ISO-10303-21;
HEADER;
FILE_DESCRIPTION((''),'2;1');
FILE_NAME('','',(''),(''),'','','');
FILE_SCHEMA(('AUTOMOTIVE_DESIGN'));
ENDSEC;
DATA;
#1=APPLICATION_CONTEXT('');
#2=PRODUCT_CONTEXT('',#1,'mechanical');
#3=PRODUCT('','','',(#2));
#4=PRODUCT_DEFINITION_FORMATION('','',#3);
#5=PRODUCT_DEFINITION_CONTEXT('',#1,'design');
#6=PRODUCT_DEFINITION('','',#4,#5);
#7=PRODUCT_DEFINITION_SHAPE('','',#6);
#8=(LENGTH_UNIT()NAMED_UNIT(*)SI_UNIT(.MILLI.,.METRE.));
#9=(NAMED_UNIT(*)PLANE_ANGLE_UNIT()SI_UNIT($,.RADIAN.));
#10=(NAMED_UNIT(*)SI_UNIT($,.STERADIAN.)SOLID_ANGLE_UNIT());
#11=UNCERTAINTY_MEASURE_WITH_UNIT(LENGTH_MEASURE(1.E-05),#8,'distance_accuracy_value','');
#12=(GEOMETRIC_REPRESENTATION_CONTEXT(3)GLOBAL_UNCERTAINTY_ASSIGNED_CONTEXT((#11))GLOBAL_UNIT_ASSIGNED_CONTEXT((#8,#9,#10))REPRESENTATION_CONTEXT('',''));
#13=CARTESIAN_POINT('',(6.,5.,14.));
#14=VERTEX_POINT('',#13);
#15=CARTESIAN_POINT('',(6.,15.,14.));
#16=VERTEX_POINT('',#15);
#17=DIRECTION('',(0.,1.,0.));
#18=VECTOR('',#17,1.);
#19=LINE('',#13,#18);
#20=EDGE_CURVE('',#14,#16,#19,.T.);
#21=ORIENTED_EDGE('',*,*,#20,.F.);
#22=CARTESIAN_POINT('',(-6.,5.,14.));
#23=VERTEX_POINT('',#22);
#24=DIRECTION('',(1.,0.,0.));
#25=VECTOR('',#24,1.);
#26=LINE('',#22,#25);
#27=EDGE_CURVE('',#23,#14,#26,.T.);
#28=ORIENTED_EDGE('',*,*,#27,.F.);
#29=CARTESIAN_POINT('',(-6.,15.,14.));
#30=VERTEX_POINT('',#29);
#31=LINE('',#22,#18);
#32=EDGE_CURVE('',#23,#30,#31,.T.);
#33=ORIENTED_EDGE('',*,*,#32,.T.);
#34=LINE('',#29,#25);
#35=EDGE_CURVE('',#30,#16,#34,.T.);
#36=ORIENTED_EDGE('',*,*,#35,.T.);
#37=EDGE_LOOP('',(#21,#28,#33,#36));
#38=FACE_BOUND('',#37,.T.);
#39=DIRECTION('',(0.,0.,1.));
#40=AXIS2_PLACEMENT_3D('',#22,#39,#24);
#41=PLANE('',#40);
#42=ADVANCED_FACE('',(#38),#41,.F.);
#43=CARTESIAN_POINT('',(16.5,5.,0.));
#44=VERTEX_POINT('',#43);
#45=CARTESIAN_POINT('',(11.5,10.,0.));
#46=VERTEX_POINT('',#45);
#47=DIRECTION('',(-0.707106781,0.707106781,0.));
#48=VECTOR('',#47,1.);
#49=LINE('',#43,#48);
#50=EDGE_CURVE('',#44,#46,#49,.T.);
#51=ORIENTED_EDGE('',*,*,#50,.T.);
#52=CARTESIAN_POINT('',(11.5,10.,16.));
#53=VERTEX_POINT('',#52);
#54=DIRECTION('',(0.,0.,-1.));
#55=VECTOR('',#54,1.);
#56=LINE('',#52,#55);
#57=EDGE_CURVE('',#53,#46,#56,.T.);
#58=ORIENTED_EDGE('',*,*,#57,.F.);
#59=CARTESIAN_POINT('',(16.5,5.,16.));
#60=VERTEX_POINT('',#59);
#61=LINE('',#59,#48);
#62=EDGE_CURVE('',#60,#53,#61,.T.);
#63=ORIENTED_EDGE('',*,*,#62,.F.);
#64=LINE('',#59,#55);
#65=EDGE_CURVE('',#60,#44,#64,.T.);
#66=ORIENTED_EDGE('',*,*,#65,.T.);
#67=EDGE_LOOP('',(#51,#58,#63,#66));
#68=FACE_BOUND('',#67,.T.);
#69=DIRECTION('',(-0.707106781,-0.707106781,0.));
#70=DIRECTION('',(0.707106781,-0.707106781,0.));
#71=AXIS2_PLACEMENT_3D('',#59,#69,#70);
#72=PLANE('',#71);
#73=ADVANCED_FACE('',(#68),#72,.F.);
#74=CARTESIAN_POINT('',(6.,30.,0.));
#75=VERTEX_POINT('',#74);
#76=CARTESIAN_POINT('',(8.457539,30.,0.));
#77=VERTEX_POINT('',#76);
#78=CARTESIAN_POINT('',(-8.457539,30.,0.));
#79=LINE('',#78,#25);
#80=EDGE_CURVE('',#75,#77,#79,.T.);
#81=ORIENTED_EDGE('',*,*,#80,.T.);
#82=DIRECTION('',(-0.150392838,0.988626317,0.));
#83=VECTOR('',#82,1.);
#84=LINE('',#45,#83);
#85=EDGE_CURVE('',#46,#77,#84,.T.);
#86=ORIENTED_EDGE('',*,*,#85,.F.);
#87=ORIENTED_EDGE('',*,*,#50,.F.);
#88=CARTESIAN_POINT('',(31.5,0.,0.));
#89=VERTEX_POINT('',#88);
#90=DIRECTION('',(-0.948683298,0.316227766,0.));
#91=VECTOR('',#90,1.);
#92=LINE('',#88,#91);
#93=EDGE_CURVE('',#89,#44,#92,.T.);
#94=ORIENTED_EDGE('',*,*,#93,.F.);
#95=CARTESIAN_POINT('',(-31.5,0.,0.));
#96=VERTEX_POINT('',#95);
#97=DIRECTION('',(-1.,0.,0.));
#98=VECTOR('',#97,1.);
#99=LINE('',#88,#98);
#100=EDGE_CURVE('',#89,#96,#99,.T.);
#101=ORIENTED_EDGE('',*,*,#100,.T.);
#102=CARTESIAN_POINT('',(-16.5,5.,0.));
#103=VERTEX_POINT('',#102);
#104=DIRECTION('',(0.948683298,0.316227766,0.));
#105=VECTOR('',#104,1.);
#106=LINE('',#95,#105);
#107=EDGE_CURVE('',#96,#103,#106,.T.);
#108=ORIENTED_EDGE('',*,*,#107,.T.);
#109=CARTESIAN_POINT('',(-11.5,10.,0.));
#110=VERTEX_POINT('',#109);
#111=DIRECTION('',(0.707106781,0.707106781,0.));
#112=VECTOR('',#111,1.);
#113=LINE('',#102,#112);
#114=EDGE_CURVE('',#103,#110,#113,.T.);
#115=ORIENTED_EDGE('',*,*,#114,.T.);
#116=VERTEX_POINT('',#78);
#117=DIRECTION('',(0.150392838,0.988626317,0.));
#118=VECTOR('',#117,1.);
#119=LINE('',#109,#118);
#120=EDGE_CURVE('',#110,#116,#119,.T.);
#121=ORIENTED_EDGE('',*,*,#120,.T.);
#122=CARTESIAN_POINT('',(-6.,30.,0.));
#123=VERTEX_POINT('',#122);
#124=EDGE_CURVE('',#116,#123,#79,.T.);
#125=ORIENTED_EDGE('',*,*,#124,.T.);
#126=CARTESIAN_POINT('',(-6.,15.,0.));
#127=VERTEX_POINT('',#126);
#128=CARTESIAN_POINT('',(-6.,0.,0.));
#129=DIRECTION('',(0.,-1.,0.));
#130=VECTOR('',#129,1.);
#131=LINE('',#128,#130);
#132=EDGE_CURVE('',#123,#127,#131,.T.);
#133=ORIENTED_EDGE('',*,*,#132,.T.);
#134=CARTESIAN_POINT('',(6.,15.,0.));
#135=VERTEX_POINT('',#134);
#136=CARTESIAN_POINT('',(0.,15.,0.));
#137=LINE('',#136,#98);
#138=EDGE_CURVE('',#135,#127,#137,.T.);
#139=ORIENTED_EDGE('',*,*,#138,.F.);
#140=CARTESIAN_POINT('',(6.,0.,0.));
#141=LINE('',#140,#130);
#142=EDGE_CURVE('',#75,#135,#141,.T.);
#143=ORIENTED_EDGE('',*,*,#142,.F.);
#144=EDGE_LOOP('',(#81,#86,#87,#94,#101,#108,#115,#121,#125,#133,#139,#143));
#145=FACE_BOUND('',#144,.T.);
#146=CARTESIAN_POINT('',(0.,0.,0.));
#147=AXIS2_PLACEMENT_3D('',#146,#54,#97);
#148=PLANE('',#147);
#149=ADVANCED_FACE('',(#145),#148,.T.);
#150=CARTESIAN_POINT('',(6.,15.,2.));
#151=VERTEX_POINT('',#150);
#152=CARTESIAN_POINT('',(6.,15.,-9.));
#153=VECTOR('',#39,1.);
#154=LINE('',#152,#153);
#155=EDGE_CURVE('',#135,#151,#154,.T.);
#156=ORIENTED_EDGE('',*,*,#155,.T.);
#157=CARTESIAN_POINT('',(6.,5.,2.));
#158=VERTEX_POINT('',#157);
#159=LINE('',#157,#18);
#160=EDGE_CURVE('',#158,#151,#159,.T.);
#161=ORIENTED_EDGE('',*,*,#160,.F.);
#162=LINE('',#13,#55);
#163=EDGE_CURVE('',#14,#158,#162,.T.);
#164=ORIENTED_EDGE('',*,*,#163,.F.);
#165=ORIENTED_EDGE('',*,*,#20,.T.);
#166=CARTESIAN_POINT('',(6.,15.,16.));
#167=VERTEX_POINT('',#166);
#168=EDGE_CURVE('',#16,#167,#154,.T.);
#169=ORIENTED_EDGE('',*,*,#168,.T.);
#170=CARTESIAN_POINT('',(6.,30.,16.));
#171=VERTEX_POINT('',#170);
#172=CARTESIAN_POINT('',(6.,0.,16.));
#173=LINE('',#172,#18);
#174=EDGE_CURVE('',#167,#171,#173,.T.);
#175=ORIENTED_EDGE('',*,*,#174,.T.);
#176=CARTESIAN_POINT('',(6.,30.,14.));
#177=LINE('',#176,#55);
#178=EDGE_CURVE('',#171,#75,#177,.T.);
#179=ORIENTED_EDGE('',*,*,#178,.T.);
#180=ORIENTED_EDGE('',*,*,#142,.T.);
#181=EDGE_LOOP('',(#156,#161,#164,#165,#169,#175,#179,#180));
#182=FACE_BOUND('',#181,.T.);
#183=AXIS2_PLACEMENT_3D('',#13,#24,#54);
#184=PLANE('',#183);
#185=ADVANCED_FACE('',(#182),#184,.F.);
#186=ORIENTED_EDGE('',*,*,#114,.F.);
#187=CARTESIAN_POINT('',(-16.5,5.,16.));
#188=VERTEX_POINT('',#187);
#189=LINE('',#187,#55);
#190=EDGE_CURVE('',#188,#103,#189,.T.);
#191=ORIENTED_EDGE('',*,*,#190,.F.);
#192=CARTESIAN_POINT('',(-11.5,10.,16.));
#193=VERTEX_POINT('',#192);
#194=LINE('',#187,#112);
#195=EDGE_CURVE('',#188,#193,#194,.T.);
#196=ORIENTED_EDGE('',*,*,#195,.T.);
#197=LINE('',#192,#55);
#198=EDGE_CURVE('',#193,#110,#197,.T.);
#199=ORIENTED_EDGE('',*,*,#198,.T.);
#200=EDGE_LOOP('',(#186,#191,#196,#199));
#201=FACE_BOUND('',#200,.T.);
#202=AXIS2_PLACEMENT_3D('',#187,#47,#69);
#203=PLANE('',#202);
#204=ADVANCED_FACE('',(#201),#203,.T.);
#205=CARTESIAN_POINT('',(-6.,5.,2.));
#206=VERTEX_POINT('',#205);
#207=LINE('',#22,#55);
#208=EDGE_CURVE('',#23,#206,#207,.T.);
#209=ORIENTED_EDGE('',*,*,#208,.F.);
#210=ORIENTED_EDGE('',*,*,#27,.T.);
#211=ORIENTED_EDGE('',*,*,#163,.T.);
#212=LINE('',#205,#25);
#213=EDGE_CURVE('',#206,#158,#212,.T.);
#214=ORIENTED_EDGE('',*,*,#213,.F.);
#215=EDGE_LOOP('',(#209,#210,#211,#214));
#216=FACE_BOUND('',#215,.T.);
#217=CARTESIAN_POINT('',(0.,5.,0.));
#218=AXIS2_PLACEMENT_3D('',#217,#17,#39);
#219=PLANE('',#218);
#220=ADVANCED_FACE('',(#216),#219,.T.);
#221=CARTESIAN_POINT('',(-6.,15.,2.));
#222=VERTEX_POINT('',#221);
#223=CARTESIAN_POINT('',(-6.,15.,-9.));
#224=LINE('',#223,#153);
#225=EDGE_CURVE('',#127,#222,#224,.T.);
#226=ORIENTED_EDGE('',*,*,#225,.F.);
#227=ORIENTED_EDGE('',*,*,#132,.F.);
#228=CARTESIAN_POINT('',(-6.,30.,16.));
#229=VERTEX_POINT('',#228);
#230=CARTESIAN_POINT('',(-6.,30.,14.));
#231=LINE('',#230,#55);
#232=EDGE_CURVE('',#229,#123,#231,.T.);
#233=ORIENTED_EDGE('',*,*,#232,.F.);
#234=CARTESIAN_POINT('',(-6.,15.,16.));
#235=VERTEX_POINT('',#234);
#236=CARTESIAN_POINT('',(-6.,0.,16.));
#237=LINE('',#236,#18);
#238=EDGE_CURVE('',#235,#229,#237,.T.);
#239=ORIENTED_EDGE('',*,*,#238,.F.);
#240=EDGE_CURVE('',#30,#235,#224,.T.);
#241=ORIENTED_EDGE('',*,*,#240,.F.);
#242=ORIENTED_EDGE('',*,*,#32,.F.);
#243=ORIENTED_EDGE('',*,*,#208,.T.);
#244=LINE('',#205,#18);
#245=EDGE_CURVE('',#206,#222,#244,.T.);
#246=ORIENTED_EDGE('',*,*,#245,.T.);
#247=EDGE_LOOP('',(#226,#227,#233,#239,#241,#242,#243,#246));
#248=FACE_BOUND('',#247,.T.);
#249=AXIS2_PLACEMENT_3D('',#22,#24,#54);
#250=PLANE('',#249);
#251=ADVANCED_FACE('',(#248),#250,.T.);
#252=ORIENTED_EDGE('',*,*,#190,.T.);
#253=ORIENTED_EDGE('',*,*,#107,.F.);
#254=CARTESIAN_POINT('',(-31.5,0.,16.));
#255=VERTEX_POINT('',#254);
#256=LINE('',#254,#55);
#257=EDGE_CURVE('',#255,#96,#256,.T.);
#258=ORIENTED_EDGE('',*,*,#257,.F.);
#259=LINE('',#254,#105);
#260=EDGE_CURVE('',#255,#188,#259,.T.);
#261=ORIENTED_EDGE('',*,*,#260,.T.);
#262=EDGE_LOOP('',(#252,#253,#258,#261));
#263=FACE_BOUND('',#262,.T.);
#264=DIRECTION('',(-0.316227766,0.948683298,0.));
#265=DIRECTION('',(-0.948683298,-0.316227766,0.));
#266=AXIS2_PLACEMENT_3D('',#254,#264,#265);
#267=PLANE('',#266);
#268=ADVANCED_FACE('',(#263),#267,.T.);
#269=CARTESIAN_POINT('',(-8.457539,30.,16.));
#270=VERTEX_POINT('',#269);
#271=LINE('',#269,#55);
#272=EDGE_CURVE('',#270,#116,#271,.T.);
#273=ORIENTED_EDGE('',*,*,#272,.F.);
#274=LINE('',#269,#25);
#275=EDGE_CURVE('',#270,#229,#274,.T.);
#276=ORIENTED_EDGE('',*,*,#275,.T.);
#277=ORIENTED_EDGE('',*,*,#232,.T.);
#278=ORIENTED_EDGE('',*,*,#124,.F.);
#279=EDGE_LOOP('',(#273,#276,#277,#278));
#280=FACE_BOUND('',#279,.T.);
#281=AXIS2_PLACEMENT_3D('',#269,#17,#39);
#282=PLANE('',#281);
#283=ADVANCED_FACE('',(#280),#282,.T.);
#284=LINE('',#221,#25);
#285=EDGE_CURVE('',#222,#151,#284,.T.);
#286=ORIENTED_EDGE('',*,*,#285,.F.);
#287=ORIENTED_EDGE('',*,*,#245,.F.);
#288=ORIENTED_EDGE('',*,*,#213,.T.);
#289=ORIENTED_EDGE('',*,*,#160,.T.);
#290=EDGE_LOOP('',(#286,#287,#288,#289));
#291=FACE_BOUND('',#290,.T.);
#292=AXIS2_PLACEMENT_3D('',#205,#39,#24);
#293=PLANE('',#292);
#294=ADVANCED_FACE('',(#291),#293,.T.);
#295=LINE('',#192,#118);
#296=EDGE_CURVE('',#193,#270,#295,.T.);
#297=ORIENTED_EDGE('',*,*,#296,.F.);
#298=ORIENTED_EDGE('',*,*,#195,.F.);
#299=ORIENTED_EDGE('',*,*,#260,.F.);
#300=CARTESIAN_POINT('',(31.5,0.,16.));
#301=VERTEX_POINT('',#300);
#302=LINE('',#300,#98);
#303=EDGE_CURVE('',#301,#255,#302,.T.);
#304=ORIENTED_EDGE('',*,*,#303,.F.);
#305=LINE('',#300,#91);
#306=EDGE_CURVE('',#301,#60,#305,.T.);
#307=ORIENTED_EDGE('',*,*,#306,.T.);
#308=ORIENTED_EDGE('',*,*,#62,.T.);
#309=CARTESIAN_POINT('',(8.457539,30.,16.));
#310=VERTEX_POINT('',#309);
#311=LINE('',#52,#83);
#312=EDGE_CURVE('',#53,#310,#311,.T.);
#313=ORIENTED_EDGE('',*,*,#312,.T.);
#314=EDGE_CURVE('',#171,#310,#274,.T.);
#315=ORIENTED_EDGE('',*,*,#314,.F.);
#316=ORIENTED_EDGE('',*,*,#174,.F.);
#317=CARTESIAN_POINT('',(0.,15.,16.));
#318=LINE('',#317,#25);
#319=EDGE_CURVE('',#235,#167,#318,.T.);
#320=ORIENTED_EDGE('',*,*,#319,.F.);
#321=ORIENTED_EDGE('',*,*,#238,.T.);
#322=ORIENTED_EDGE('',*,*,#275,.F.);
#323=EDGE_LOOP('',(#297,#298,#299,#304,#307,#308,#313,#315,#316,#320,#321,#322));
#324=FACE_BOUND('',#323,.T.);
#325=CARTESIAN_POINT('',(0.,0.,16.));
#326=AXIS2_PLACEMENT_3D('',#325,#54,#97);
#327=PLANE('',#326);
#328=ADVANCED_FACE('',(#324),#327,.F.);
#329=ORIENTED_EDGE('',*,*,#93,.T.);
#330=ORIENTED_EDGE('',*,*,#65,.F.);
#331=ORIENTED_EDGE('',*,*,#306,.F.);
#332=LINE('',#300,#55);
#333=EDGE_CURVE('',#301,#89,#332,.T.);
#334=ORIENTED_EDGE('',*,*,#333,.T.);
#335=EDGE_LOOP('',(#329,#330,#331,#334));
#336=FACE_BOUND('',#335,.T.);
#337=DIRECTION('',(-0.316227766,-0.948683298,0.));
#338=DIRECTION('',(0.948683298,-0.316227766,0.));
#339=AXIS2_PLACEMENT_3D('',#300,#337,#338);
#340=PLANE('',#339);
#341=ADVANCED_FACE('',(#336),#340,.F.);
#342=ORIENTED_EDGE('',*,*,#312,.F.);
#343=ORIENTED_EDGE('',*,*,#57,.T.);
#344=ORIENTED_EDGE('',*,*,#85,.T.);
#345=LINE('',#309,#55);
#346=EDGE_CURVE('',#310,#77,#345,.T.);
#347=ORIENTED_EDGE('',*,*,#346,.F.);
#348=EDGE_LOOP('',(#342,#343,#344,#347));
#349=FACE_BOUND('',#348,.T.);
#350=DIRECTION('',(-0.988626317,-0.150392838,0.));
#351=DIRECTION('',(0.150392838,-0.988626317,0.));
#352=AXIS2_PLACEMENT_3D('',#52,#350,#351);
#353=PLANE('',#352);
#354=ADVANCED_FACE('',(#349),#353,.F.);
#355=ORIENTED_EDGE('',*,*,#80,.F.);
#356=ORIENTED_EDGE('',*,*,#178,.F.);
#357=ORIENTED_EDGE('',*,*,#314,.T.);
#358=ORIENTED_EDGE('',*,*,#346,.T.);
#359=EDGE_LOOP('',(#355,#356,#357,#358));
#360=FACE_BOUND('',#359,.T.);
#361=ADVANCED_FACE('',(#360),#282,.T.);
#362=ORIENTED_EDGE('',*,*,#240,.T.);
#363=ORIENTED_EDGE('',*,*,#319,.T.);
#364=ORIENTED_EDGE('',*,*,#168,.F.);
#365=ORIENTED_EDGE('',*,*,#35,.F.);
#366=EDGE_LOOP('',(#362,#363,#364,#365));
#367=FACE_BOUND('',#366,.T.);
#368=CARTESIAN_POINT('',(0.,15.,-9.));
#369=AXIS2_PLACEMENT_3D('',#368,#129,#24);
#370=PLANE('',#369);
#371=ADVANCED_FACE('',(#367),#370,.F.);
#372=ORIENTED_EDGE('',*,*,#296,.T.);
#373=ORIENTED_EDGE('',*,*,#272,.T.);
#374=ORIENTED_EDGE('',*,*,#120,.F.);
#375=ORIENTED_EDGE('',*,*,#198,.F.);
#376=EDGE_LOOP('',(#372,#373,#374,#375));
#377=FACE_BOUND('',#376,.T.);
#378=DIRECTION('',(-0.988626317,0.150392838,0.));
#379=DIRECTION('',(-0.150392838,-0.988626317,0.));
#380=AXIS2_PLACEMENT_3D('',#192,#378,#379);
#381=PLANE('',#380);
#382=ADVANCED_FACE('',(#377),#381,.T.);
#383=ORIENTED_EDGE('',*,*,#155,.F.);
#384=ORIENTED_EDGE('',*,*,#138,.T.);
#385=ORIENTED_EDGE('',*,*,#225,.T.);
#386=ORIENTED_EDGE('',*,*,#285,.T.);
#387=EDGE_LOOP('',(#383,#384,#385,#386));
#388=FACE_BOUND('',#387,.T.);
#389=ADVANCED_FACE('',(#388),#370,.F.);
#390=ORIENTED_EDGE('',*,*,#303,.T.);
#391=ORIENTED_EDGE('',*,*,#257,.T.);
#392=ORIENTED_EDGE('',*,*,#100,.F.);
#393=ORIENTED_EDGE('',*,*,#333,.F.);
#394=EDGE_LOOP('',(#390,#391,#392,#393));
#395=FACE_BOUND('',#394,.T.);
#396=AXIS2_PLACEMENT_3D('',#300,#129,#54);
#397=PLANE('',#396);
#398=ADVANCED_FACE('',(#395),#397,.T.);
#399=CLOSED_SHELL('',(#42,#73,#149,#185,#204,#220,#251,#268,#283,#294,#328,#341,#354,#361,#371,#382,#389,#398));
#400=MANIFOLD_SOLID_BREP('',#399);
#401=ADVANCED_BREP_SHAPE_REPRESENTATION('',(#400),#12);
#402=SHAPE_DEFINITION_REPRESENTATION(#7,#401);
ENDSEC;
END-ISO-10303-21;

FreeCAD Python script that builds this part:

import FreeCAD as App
import Part
import Sketcher

doc = App.newDocument("Part")
params = doc.addObject("Spreadsheet::Sheet", "Params")
for row, (alias, value) in enumerate([
    ("sketch1_width", "63 mm"),
    ("pad1_length", "16 mm"),
    ("sketch2_width", "12 mm"),
    ("pocket1_length", "25 mm"),
    ("sketch3_width", "12 mm"),
    ("sketch3_height", "15 mm"),
    ("pocket2_length", "25 mm"),
], start=1):
    params.set(f"A{row}", alias)
    params.set(f"B{row}", "=" + value)
    params.setAlias(f"B{row}", alias)

body = doc.addObject("PartDesign::Body", "Body")

sketch1 = body.newObject("Sketcher::SketchObject", "Sketch")
sketch1.AttachmentSupport = (doc.getObject("XY_Plane"), [""])
sketch1.MapMode = "FlatFace"
sketch1.addGeometry(Part.LineSegment(App.Vector(-32, 0, 0), App.Vector(32, 0, 0)), False)
sketch1.addGeometry(Part.LineSegment(App.Vector(32, 0, 0), App.Vector(16, 5, 0)), False)
sketch1.addGeometry(Part.LineSegment(App.Vector(16, 5, 0), App.Vector(12, 10, 0)), False)
sketch1.addGeometry(Part.LineSegment(App.Vector(12, 10, 0), App.Vector(8, 30, 0)), False)
sketch1.addGeometry(Part.LineSegment(App.Vector(8, 30, 0), App.Vector(-8, 30, 0)), False)
sketch1.addGeometry(Part.LineSegment(App.Vector(-8, 30, 0), App.Vector(-12, 10, 0)), False)
sketch1.addGeometry(Part.LineSegment(App.Vector(-12, 10, 0), App.Vector(-16, 5, 0)), False)
sketch1.addGeometry(Part.LineSegment(App.Vector(-16, 5, 0), App.Vector(-32, 0, 0)), False)
sketch1.addConstraint(Sketcher.Constraint("Coincident", 0, 2, 1, 1))
sketch1.addConstraint(Sketcher.Constraint("Coincident", 1, 2, 2, 1))
sketch1.addConstraint(Sketcher.Constraint("Coincident", 2, 2, 3, 1))
sketch1.addConstraint(Sketcher.Constraint("Coincident", 3, 2, 4, 1))
sketch1.addConstraint(Sketcher.Constraint("Coincident", 4, 2, 5, 1))
sketch1.addConstraint(Sketcher.Constraint("Coincident", 5, 2, 6, 1))
sketch1.addConstraint(Sketcher.Constraint("Coincident", 6, 2, 7, 1))
sketch1.addConstraint(Sketcher.Constraint("Coincident", 7, 2, 0, 1))
sketch1.addConstraint(Sketcher.Constraint("Horizontal", 0))
sketch1.addConstraint(Sketcher.Constraint("Horizontal", 4))
sketch1.addConstraint(Sketcher.Constraint("Symmetric", 0, 2, 7, 2, -1, 1))
sketch1.addConstraint(Sketcher.Constraint("Symmetric", 2, 2, 5, 2, -2))
sketch1.addConstraint(Sketcher.Constraint("Symmetric", 1, 2, 6, 2, -2))
sketch1.addConstraint(Sketcher.Constraint("Perpendicular", 2, 6))
sketch1.addConstraint(Sketcher.Constraint("Equal", 3, 5))
sketch1.addConstraint(Sketcher.Constraint("DistanceX", 0, 1, 0, 2, 63.0))
sketch1.addConstraint(Sketcher.Constraint("DistanceY", -1, 1, 1, 2, 5.0))
sketch1.addConstraint(Sketcher.Constraint("DistanceY", -1, 1, 2, 2, 10.0))
sketch1.addConstraint(Sketcher.Constraint("DistanceY", -1, 1, 3, 2, 30.0))
sketch1.addConstraint(Sketcher.Constraint("DistanceX", 1, 2, 0, 2, 15.0))
sketch1.addConstraint(Sketcher.Constraint("DistanceX", 4, 2, 4, 1, 16.915079))
sketch1.setExpression("Constraints[15]", "Params.sketch1_width")
pad1 = body.newObject("PartDesign::Pad", "Pad")
pad1.Profile = sketch1
pad1.setExpression("Length", "Params.pad1_length")

sketch2 = body.newObject("Sketcher::SketchObject", "Sketch001")
sketch2.AttachmentSupport = (doc.getObject("XZ_Plane"), [""])
sketch2.MapMode = "FlatFace"
sketch2.AttachmentOffset = App.Placement(App.Vector(0, 0, -30), App.Rotation())
sketch2.addGeometry(Part.LineSegment(App.Vector(-6, 2, 0), App.Vector(-6, 14, 0)), False)
sketch2.addGeometry(Part.LineSegment(App.Vector(-6, 14, 0), App.Vector(6, 14, 0)), False)
sketch2.addGeometry(Part.LineSegment(App.Vector(6, 14, 0), App.Vector(6, 2, 0)), False)
sketch2.addGeometry(Part.LineSegment(App.Vector(6, 2, 0), App.Vector(-6, 2, 0)), False)
sketch2.addConstraint(Sketcher.Constraint("Coincident", 0, 2, 1, 1))
sketch2.addConstraint(Sketcher.Constraint("Coincident", 1, 2, 2, 1))
sketch2.addConstraint(Sketcher.Constraint("Coincident", 2, 2, 3, 1))
sketch2.addConstraint(Sketcher.Constraint("Coincident", 3, 2, 0, 1))
sketch2.addConstraint(Sketcher.Constraint("Vertical", 0))
sketch2.addConstraint(Sketcher.Constraint("Horizontal", 1))
sketch2.addConstraint(Sketcher.Constraint("Vertical", 2))
sketch2.addConstraint(Sketcher.Constraint("Horizontal", 3))
sketch2.addConstraint(Sketcher.Constraint("Equal", 3, 0))
sketch2.addConstraint(Sketcher.Constraint("DistanceX", 1, 1, 1, 2, 12.0))
sketch2.addConstraint(Sketcher.Constraint("DistanceX", 0, 2, -1, 1, 6.0))
sketch2.addConstraint(Sketcher.Constraint("DistanceY", -1, 1, 0, 2, 14.0))
sketch2.setExpression("Constraints[9]", "Params.sketch2_width")
pocket1 = body.newObject("PartDesign::Pocket", "Pocket")
pocket1.Profile = sketch2
pocket1.setExpression("Length", "Params.pocket1_length")
pocket1.Reversed = True

sketch3 = body.newObject("Sketcher::SketchObject", "Sketch002")
sketch3.AttachmentSupport = (doc.getObject("XY_Plane"), [""])
sketch3.MapMode = "FlatFace"
sketch3.AttachmentOffset = App.Placement(App.Vector(0, 0, 16), App.Rotation())
sketch3.addGeometry(Part.LineSegment(App.Vector(6, 15, 0), App.Vector(6, 30, 0)), False)
sketch3.addGeometry(Part.LineSegment(App.Vector(6, 30, 0), App.Vector(-6, 30, 0)), False)
sketch3.addGeometry(Part.LineSegment(App.Vector(-6, 30, 0), App.Vector(-6, 15, 0)), False)
sketch3.addGeometry(Part.LineSegment(App.Vector(-6, 15, 0), App.Vector(6, 15, 0)), False)
sketch3.addConstraint(Sketcher.Constraint("Coincident", 0, 2, 1, 1))
sketch3.addConstraint(Sketcher.Constraint("Coincident", 1, 2, 2, 1))
sketch3.addConstraint(Sketcher.Constraint("Coincident", 2, 2, 3, 1))
sketch3.addConstraint(Sketcher.Constraint("Coincident", 3, 2, 0, 1))
sketch3.addConstraint(Sketcher.Constraint("Vertical", 0))
sketch3.addConstraint(Sketcher.Constraint("Horizontal", 1))
sketch3.addConstraint(Sketcher.Constraint("Vertical", 2))
sketch3.addConstraint(Sketcher.Constraint("Horizontal", 3))
sketch3.addConstraint(Sketcher.Constraint("DistanceX", 1, 2, 1, 1, 12.0))
sketch3.addConstraint(Sketcher.Constraint("DistanceY", 0, 1, 0, 2, 15.0))
sketch3.addConstraint(Sketcher.Constraint("DistanceX", -1, 1, 0, 2, 6.0))
sketch3.addConstraint(Sketcher.Constraint("DistanceY", -1, 1, 0, 2, 30.0))
sketch3.setExpression("Constraints[8]", "Params.sketch3_width")
sketch3.setExpression("Constraints[9]", "Params.sketch3_height")
pocket2 = body.newObject("PartDesign::Pocket", "Pocket001")
pocket2.Profile = sketch3
pocket2.setExpression("Length", "Params.pocket2_length")

doc.recompute()
